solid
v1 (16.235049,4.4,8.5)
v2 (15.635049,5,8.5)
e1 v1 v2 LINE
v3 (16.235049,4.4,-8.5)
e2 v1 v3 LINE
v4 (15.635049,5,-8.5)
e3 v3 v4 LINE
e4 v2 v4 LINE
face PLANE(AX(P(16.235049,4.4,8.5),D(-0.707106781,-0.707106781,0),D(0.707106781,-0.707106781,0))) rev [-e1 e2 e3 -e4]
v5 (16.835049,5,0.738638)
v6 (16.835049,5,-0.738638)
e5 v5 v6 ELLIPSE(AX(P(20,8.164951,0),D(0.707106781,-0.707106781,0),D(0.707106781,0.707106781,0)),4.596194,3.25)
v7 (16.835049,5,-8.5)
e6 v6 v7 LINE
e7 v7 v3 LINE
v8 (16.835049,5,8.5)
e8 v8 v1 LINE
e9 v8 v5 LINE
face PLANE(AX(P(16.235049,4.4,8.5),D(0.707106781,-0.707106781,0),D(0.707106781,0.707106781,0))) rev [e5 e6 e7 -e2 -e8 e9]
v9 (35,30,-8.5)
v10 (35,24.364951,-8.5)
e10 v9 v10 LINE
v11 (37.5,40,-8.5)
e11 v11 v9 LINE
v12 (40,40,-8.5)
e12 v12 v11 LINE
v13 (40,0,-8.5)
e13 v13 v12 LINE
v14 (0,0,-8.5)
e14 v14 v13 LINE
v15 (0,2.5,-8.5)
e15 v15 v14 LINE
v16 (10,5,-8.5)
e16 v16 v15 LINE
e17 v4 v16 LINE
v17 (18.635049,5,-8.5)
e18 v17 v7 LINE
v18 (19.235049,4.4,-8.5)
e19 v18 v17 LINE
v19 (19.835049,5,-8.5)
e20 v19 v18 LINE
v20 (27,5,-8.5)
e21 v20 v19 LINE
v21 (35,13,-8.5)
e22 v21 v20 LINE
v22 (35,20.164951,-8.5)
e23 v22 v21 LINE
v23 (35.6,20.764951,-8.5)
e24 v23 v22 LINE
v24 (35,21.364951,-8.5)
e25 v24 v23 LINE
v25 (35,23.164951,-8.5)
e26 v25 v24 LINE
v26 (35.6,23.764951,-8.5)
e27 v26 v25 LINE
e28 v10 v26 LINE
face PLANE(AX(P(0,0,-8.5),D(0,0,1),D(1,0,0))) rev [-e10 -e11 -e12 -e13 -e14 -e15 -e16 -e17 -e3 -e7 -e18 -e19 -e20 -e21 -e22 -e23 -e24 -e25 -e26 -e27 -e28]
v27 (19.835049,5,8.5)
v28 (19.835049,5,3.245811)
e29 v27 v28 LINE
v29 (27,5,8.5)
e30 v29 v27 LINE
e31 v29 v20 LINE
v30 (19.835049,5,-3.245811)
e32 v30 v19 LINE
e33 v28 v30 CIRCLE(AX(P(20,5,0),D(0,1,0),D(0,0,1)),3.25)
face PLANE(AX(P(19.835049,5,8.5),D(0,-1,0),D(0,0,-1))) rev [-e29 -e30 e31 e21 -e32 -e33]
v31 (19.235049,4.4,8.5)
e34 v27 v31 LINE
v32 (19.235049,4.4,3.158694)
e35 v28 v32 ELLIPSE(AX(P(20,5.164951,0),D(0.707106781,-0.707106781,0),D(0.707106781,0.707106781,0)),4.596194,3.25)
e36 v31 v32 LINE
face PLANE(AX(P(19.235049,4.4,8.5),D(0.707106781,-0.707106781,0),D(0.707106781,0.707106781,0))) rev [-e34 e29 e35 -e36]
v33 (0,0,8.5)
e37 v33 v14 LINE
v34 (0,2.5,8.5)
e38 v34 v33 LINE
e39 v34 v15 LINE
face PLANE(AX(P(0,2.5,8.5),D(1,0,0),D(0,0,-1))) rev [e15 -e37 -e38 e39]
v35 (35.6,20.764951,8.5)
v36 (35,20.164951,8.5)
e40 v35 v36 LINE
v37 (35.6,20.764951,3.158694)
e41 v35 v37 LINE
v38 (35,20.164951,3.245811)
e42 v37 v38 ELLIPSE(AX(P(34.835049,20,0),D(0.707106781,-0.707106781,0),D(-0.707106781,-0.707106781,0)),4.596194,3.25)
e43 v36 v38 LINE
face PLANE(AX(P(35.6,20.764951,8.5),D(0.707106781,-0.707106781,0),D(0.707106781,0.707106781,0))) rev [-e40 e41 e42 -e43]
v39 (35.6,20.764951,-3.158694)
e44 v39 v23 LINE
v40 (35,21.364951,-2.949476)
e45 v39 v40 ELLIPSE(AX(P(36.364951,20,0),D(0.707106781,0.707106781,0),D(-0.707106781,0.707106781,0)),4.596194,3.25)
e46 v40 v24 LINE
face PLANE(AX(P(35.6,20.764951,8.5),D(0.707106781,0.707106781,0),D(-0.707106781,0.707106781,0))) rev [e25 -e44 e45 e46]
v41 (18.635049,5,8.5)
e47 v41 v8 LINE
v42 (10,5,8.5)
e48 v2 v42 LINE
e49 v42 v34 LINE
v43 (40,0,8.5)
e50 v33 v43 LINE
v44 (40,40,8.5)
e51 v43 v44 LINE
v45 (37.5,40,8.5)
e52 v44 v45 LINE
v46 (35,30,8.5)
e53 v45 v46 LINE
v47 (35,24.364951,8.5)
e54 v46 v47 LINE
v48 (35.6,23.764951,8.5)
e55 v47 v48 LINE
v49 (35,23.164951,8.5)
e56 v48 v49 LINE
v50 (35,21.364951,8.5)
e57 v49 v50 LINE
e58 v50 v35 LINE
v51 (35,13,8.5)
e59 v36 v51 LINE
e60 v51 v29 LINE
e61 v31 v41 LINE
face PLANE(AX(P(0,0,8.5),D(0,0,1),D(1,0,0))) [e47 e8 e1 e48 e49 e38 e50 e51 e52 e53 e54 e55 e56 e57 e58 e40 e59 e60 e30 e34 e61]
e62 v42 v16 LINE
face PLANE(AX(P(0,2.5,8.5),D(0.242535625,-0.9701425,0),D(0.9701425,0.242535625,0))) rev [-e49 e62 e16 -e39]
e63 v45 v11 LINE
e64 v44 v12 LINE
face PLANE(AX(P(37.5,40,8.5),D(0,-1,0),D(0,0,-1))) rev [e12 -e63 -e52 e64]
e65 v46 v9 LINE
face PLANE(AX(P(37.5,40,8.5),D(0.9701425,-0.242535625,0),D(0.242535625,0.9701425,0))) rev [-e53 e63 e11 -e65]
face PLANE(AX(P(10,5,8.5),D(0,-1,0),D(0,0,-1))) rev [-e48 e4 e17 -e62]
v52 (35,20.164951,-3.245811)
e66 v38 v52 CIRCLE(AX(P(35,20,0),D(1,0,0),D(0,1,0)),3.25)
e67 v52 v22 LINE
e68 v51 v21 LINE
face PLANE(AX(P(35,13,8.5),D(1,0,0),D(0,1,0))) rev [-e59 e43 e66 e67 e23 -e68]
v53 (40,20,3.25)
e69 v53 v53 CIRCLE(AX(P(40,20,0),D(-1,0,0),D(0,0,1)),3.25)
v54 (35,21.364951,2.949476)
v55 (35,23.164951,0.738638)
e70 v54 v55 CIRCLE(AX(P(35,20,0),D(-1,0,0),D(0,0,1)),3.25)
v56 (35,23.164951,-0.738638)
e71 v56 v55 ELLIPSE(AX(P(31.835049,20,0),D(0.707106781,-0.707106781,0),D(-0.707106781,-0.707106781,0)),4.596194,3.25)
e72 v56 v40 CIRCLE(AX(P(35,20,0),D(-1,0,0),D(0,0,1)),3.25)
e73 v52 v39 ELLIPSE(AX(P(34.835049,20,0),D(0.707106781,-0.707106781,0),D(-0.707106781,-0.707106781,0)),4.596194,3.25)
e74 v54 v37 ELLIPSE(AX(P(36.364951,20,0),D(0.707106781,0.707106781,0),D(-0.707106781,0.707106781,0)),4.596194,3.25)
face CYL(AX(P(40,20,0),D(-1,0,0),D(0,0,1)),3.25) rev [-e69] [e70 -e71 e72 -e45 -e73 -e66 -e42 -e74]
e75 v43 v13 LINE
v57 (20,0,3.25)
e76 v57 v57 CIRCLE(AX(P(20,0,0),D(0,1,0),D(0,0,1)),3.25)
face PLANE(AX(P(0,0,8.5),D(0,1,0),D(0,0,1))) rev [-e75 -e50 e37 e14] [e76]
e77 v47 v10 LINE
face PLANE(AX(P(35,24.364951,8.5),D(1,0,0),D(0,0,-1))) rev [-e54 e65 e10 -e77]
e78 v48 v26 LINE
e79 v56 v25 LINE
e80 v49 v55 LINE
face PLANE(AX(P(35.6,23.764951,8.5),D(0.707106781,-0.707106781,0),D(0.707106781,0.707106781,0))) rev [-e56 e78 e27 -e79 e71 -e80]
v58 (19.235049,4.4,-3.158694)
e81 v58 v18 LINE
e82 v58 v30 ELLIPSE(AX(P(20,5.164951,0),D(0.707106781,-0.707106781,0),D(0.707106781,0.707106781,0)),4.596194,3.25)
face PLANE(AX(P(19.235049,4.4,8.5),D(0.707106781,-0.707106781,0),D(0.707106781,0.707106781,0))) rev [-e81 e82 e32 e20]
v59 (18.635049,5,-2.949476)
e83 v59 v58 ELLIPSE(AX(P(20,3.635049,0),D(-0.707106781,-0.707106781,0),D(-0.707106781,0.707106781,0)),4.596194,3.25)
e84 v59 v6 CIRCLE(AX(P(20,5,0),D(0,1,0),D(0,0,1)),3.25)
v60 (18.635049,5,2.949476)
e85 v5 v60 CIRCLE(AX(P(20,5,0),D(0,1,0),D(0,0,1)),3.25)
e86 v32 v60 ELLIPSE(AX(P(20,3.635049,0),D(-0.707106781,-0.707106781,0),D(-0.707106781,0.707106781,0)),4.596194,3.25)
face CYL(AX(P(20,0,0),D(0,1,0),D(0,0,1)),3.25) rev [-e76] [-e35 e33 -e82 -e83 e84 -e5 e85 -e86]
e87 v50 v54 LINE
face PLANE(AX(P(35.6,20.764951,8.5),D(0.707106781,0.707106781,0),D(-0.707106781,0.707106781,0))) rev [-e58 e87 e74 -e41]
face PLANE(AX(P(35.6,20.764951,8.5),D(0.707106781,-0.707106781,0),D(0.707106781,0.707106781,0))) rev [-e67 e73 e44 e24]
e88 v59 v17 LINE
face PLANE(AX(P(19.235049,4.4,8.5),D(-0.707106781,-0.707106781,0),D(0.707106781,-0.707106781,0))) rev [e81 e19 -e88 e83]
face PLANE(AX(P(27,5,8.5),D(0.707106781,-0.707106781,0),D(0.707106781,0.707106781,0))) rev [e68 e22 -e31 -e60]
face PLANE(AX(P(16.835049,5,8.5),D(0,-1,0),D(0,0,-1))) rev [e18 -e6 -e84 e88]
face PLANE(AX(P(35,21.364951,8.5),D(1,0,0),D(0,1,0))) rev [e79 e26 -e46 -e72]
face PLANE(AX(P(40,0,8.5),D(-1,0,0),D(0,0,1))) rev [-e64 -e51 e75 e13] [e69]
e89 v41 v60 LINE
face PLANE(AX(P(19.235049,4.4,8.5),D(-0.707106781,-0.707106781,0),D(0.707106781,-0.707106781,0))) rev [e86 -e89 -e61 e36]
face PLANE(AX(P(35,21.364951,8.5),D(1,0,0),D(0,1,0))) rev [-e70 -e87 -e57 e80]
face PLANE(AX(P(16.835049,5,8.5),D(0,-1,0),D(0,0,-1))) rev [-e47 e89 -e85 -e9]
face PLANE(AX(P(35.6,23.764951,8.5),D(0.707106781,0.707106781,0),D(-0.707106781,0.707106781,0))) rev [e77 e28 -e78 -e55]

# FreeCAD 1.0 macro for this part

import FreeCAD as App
import Part
import Sketcher


def add_polygon(sketch, points):
    """Adds a closed chain of lines whose ends are joined by coincident constraints."""
    first, n = sketch.GeometryCount, len(points)
    for a, b in zip(points, points[1:] + points[:1]):
        sketch.addGeometry(Part.LineSegment(App.Vector(*a, 0), App.Vector(*b, 0)), False)
    for i in range(n):
        sketch.addConstraint(Sketcher.Constraint("Coincident", first + i, 2, first + (i + 1) % n, 1))

doc = App.newDocument("Part")
body = doc.addObject("PartDesign::Body", "Body")

sketch1 = body.newObject("Sketcher::SketchObject", "Sketch")
sketch1.AttachmentSupport = (doc.getObject("XY_Plane"), [""])
sketch1.MapMode = "FlatFace"
add_polygon(sketch1, [(0, 0), (40, 0), (40, 40), (37.5, 40), (35, 30), (35, 24.4), (35.6, 23.8), (35, 23.2), (35, 21.4), (35.6, 20.8), (35, 20.2), (35, 13), (27, 5), (19.8, 5), (19.2, 4.4), (18.6, 5), (16.8, 5), (16.2, 4.4), (15.6, 5), (10, 5), (0, 2.5)])
sketch1.addConstraint(Sketcher.Constraint("Horizontal", 0))
sketch1.addConstraint(Sketcher.Constraint("Vertical", 1))
sketch1.addConstraint(Sketcher.Constraint("Horizontal", 2))
sketch1.addConstraint(Sketcher.Constraint("Vertical", 4))
sketch1.addConstraint(Sketcher.Constraint("Vertical", 7))
sketch1.addConstraint(Sketcher.Constraint("Vertical", 10))
sketch1.addConstraint(Sketcher.Constraint("Horizontal", 12))
sketch1.addConstraint(Sketcher.Constraint("Horizontal", 15))
sketch1.addConstraint(Sketcher.Constraint("Horizontal", 18))
sketch1.addConstraint(Sketcher.Constraint("Vertical", 20))
sketch1.addConstraint(Sketcher.Constraint("Coincident", 20, 2, -1, 1))
sketch1.addConstraint(Sketcher.Constraint("Perpendicular", 5, 6))
sketch1.addConstraint(Sketcher.Constraint("Perpendicular", 6, 8))
sketch1.addConstraint(Sketcher.Constraint("Perpendicular", 8, 9))
sketch1.addConstraint(Sketcher.Constraint("Parallel", 9, 11))
sketch1.addConstraint(Sketcher.Constraint("Parallel", 11, 13))
sketch1.addConstraint(Sketcher.Constraint("Perpendicular", 13, 14))
sketch1.addConstraint(Sketcher.Constraint("Perpendicular", 14, 16))
sketch1.addConstraint(Sketcher.Constraint("Perpendicular", 16, 17))
sketch1.addConstraint(Sketcher.Constraint("Horizontal", 12, 2, 14, 2))
sketch1.addConstraint(Sketcher.Constraint("Horizontal", 13, 2, 16, 2))
sketch1.addConstraint(Sketcher.Constraint("Horizontal", 15, 2, 17, 2))
sketch1.addConstraint(Sketcher.Constraint("Vertical", 4, 2, 6, 2))
sketch1.addConstraint(Sketcher.Constraint("Vertical", 5, 2, 8, 2))
sketch1.addConstraint(Sketcher.Constraint("Vertical", 7, 2, 9, 2))
sketch1.addConstraint(Sketcher.Constraint("Equal", 0, 1))
sketch1.addConstraint(Sketcher.Constraint("Equal", 18, 4))
sketch1.addConstraint(Sketcher.Constraint("Equal", 15, 7))
sketch1.addConstraint(Sketcher.Constraint("Equal", 12, 10))
sketch1.addConstraint(Sketcher.Constraint("Equal", 2, 20))
sketch1.addConstraint(Sketcher.Constraint("Equal", 5, 6))
sketch1.addConstraint(Sketcher.Constraint("Equal", 9, 13))
sketch1.addConstraint(Sketcher.Constraint("Equal", 3, 19))
sketch1.addConstraint(Sketcher.Constraint("DistanceX", 0, 1, 0, 2, 40.0))
sketch1.addConstraint(Sketcher.Constraint("DistanceX", 2, 2, 2, 1, 2.5))
sketch1.addConstraint(Sketcher.Constraint("DistanceX", 15, 2, 15, 1, 1.8))
sketch1.addConstraint(Sketcher.Constraint("DistanceX", -1, 1, 3, 2, 35.0))
sketch1.addConstraint(Sketcher.Constraint("DistanceY", -1, 1, 3, 2, 30.0))
sketch1.addConstraint(Sketcher.Constraint("DistanceY", -1, 1, 10, 2, 13.0))
sketch1.addConstraint(Sketcher.Constraint("DistanceY", 7, 2, 4, 2, 3.0))
sketch1.addConstraint(Sketcher.Constraint("DistanceX", 12, 2, 12, 1, 7.164951))
pad1 = body.newObject("PartDesign::Pad", "Pad")
pad1.Profile = sketch1
pad1.Length = 17
pad1.Midplane = True

sketch2 = body.newObject("Sketcher::SketchObject", "Sketch001")
sketch2.AttachmentSupport = (doc.getObject("XZ_Plane"), [""])
sketch2.MapMode = "FlatFace"
sketch2.AttachmentOffset = App.Placement(App.Vector(0, 0, -5), App.Rotation())
sketch2.addGeometry(Part.Circle(App.Vector(20, 0, 0), App.Vector(0, 0, 1), 3.2), False)
sketch2.addConstraint(Sketcher.Constraint("PointOnObject", 0, 3, -1))
sketch2.addConstraint(Sketcher.Constraint("Diameter", 0, 6.5))
sketch2.addConstraint(Sketcher.Constraint("DistanceX", -1, 1, 0, 3, 20.0))
pocket1 = body.newObject("PartDesign::Pocket", "Pocket")
pocket1.Profile = sketch2
pocket1.Type = "ThroughAll"
pocket1.Reversed = True

sketch3 = body.newObject("Sketcher::SketchObject", "Sketch002")
sketch3.AttachmentSupport = (doc.getObject("YZ_Plane"), [""])
sketch3.MapMode = "FlatFace"
sketch3.AttachmentOffset = App.Placement(App.Vector(0, 0, 35), App.Rotation())
sketch3.addGeometry(Part.Circle(App.Vector(20, 0, 0), App.Vector(0, 0, 1), 3.2), False)
sketch3.addConstraint(Sketcher.Constraint("PointOnObject", 0, 3, -1))
sketch3.addConstraint(Sketcher.Constraint("Diameter", 0, 6.5))
sketch3.addConstraint(Sketcher.Constraint("DistanceX", -1, 1, 0, 3, 20.0))
pocket2 = body.newObject("PartDesign::Pocket", "Pocket001")
pocket2.Profile = sketch3
pocket2.Type = "ThroughAll"
pocket2.Reversed = True

doc.recompute()
